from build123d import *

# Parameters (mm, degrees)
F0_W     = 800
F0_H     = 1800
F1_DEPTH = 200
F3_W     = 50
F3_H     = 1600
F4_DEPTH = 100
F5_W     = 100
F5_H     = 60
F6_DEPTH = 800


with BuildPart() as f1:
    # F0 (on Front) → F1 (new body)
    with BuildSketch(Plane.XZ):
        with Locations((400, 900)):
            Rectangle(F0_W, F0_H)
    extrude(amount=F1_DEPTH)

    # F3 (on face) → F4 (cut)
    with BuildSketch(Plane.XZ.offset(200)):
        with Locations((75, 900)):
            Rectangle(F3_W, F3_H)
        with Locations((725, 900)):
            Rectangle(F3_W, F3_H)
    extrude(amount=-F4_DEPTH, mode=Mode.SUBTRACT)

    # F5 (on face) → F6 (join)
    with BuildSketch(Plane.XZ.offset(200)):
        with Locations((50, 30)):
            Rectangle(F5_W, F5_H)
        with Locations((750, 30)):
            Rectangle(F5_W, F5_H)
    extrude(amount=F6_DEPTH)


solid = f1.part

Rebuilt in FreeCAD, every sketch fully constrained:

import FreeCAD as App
import Part
import Sketcher
Q = App.Units.Quantity


def add_polygon(sketch, points):
    """Adds a closed chain of lines whose ends are joined by coincident constraints."""
    first, n = sketch.GeometryCount, len(points)
    for a, b in zip(points, points[1:] + points[:1]):
        sketch.addGeometry(Part.LineSegment(App.Vector(*a, 0), App.Vector(*b, 0)), False)
    for i in range(n):
        sketch.addConstraint(Sketcher.Constraint("Coincident", first + i, 2, first + (i + 1) % n, 1))

doc = App.newDocument("Part")
body = doc.addObject("PartDesign::Body", "Body")

# Sketch on XZ plane
sketch1 = body.newObject("Sketcher::SketchObject", "Sketch")
sketch1.AttachmentSupport = (doc.getObject("XZ_Plane"), [""])
sketch1.MapMode = "FlatFace"
add_polygon(sketch1, [(0, 1800), (0, 0), (800, 0), (800, 1800)])  # lines 0-3
sketch1.addConstraint([
    Sketcher.Constraint("Vertical", 0),
    Sketcher.Constraint("Horizontal", 1),
    Sketcher.Constraint("Vertical", 2),
    Sketcher.Constraint("Horizontal", 3),
    Sketcher.Constraint("Coincident", 0, 2, -1, 1),
    Sketcher.Constraint("DistanceX", 1, 1, 1, 2, Q("800 mm")),
    Sketcher.Constraint("DistanceY", 0, 2, 0, 1, Q("1800 mm")),
])
pad1 = body.newObject("PartDesign::Pad", "Pad")
pad1.Profile = sketch1
pad1.Length = 200

# Sketch on XZ plane
sketch2 = body.newObject("Sketcher::SketchObject", "Sketch001")
sketch2.AttachmentSupport = (doc.getObject("XZ_Plane"), [""])
sketch2.MapMode = "FlatFace"
sketch2.AttachmentOffset = App.Placement(App.Vector(0, 0, 200), App.Rotation())
add_polygon(sketch2, [(50, 1700), (50, 100), (100, 100), (100, 1700)])  # lines 0-3
add_polygon(sketch2, [(700, 1700), (700, 100), (750, 100), (750, 1700)])  # lines 4-7
sketch2.addConstraint([
    Sketcher.Constraint("Vertical", 0),
    Sketcher.Constraint("Horizontal", 1),
    Sketcher.Constraint("Vertical", 2),
    Sketcher.Constraint("Horizontal", 3),
    Sketcher.Constraint("Vertical", 4),
    Sketcher.Constraint("Horizontal", 5),
    Sketcher.Constraint("Vertical", 6),
    Sketcher.Constraint("Horizontal", 7),
    Sketcher.Constraint("Horizontal", 1, 2, 4, 2),
    Sketcher.Constraint("Horizontal", 3, 2, 6, 2),
    Sketcher.Constraint("Equal", 3, 5),
    Sketcher.Constraint("DistanceX", 1, 1, 1, 2, Q("50 mm")),
    Sketcher.Constraint("DistanceY", 0, 2, 0, 1, Q("1600 mm")),
    Sketcher.Constraint("DistanceX", -1, 1, 0, 2, Q("50 mm")),
    Sketcher.Constraint("DistanceY", -1, 1, 0, 2, Q("100 mm")),
    Sketcher.Constraint("DistanceX", -1, 1, 4, 2, Q("700 mm")),
])
pocket1 = body.newObject("PartDesign::Pocket", "Pocket")
pocket1.Profile = sketch2
pocket1.Length = 100

# Sketch on XZ plane
sketch3 = body.newObject("Sketcher::SketchObject", "Sketch002")
sketch3.AttachmentSupport = (doc.getObject("XZ_Plane"), [""])
sketch3.MapMode = "FlatFace"
sketch3.AttachmentOffset = App.Placement(App.Vector(0, 0, 200), App.Rotation())
add_polygon(sketch3, [(0, 60), (0, 0), (100, 0), (100, 60)])  # lines 0-3
add_polygon(sketch3, [(700, 60), (700, 0), (800, 0), (800, 60)])  # lines 4-7
sketch3.addConstraint([
    Sketcher.Constraint("Vertical", 0),
    Sketcher.Constraint("Horizontal", 1),
    Sketcher.Constraint("Vertical", 2),
    Sketcher.Constraint("Horizontal", 3),
    Sketcher.Constraint("Vertical", 4),
    Sketcher.Constraint("Horizontal", 5),
    Sketcher.Constraint("Vertical", 6),
    Sketcher.Constraint("Horizontal", 7),
    Sketcher.Constraint("Coincident", 0, 2, -1, 1),
    Sketcher.Constraint("PointOnObject", 4, 2, -1),
    Sketcher.Constraint("Horizontal", 3, 2, 6, 2),
    Sketcher.Constraint("Equal", 3, 5),
    Sketcher.Constraint("DistanceX", 1, 1, 1, 2, Q("100 mm")),
    Sketcher.Constraint("DistanceY", 0, 2, 0, 1, Q("60 mm")),
    Sketcher.Constraint("DistanceX", -1, 1, 4, 2, Q("700 mm")),
])
pad2 = body.newObject("PartDesign::Pad", "Pad001")
pad2.Profile = sketch3
pad2.Length = 800

doc.recompute()
